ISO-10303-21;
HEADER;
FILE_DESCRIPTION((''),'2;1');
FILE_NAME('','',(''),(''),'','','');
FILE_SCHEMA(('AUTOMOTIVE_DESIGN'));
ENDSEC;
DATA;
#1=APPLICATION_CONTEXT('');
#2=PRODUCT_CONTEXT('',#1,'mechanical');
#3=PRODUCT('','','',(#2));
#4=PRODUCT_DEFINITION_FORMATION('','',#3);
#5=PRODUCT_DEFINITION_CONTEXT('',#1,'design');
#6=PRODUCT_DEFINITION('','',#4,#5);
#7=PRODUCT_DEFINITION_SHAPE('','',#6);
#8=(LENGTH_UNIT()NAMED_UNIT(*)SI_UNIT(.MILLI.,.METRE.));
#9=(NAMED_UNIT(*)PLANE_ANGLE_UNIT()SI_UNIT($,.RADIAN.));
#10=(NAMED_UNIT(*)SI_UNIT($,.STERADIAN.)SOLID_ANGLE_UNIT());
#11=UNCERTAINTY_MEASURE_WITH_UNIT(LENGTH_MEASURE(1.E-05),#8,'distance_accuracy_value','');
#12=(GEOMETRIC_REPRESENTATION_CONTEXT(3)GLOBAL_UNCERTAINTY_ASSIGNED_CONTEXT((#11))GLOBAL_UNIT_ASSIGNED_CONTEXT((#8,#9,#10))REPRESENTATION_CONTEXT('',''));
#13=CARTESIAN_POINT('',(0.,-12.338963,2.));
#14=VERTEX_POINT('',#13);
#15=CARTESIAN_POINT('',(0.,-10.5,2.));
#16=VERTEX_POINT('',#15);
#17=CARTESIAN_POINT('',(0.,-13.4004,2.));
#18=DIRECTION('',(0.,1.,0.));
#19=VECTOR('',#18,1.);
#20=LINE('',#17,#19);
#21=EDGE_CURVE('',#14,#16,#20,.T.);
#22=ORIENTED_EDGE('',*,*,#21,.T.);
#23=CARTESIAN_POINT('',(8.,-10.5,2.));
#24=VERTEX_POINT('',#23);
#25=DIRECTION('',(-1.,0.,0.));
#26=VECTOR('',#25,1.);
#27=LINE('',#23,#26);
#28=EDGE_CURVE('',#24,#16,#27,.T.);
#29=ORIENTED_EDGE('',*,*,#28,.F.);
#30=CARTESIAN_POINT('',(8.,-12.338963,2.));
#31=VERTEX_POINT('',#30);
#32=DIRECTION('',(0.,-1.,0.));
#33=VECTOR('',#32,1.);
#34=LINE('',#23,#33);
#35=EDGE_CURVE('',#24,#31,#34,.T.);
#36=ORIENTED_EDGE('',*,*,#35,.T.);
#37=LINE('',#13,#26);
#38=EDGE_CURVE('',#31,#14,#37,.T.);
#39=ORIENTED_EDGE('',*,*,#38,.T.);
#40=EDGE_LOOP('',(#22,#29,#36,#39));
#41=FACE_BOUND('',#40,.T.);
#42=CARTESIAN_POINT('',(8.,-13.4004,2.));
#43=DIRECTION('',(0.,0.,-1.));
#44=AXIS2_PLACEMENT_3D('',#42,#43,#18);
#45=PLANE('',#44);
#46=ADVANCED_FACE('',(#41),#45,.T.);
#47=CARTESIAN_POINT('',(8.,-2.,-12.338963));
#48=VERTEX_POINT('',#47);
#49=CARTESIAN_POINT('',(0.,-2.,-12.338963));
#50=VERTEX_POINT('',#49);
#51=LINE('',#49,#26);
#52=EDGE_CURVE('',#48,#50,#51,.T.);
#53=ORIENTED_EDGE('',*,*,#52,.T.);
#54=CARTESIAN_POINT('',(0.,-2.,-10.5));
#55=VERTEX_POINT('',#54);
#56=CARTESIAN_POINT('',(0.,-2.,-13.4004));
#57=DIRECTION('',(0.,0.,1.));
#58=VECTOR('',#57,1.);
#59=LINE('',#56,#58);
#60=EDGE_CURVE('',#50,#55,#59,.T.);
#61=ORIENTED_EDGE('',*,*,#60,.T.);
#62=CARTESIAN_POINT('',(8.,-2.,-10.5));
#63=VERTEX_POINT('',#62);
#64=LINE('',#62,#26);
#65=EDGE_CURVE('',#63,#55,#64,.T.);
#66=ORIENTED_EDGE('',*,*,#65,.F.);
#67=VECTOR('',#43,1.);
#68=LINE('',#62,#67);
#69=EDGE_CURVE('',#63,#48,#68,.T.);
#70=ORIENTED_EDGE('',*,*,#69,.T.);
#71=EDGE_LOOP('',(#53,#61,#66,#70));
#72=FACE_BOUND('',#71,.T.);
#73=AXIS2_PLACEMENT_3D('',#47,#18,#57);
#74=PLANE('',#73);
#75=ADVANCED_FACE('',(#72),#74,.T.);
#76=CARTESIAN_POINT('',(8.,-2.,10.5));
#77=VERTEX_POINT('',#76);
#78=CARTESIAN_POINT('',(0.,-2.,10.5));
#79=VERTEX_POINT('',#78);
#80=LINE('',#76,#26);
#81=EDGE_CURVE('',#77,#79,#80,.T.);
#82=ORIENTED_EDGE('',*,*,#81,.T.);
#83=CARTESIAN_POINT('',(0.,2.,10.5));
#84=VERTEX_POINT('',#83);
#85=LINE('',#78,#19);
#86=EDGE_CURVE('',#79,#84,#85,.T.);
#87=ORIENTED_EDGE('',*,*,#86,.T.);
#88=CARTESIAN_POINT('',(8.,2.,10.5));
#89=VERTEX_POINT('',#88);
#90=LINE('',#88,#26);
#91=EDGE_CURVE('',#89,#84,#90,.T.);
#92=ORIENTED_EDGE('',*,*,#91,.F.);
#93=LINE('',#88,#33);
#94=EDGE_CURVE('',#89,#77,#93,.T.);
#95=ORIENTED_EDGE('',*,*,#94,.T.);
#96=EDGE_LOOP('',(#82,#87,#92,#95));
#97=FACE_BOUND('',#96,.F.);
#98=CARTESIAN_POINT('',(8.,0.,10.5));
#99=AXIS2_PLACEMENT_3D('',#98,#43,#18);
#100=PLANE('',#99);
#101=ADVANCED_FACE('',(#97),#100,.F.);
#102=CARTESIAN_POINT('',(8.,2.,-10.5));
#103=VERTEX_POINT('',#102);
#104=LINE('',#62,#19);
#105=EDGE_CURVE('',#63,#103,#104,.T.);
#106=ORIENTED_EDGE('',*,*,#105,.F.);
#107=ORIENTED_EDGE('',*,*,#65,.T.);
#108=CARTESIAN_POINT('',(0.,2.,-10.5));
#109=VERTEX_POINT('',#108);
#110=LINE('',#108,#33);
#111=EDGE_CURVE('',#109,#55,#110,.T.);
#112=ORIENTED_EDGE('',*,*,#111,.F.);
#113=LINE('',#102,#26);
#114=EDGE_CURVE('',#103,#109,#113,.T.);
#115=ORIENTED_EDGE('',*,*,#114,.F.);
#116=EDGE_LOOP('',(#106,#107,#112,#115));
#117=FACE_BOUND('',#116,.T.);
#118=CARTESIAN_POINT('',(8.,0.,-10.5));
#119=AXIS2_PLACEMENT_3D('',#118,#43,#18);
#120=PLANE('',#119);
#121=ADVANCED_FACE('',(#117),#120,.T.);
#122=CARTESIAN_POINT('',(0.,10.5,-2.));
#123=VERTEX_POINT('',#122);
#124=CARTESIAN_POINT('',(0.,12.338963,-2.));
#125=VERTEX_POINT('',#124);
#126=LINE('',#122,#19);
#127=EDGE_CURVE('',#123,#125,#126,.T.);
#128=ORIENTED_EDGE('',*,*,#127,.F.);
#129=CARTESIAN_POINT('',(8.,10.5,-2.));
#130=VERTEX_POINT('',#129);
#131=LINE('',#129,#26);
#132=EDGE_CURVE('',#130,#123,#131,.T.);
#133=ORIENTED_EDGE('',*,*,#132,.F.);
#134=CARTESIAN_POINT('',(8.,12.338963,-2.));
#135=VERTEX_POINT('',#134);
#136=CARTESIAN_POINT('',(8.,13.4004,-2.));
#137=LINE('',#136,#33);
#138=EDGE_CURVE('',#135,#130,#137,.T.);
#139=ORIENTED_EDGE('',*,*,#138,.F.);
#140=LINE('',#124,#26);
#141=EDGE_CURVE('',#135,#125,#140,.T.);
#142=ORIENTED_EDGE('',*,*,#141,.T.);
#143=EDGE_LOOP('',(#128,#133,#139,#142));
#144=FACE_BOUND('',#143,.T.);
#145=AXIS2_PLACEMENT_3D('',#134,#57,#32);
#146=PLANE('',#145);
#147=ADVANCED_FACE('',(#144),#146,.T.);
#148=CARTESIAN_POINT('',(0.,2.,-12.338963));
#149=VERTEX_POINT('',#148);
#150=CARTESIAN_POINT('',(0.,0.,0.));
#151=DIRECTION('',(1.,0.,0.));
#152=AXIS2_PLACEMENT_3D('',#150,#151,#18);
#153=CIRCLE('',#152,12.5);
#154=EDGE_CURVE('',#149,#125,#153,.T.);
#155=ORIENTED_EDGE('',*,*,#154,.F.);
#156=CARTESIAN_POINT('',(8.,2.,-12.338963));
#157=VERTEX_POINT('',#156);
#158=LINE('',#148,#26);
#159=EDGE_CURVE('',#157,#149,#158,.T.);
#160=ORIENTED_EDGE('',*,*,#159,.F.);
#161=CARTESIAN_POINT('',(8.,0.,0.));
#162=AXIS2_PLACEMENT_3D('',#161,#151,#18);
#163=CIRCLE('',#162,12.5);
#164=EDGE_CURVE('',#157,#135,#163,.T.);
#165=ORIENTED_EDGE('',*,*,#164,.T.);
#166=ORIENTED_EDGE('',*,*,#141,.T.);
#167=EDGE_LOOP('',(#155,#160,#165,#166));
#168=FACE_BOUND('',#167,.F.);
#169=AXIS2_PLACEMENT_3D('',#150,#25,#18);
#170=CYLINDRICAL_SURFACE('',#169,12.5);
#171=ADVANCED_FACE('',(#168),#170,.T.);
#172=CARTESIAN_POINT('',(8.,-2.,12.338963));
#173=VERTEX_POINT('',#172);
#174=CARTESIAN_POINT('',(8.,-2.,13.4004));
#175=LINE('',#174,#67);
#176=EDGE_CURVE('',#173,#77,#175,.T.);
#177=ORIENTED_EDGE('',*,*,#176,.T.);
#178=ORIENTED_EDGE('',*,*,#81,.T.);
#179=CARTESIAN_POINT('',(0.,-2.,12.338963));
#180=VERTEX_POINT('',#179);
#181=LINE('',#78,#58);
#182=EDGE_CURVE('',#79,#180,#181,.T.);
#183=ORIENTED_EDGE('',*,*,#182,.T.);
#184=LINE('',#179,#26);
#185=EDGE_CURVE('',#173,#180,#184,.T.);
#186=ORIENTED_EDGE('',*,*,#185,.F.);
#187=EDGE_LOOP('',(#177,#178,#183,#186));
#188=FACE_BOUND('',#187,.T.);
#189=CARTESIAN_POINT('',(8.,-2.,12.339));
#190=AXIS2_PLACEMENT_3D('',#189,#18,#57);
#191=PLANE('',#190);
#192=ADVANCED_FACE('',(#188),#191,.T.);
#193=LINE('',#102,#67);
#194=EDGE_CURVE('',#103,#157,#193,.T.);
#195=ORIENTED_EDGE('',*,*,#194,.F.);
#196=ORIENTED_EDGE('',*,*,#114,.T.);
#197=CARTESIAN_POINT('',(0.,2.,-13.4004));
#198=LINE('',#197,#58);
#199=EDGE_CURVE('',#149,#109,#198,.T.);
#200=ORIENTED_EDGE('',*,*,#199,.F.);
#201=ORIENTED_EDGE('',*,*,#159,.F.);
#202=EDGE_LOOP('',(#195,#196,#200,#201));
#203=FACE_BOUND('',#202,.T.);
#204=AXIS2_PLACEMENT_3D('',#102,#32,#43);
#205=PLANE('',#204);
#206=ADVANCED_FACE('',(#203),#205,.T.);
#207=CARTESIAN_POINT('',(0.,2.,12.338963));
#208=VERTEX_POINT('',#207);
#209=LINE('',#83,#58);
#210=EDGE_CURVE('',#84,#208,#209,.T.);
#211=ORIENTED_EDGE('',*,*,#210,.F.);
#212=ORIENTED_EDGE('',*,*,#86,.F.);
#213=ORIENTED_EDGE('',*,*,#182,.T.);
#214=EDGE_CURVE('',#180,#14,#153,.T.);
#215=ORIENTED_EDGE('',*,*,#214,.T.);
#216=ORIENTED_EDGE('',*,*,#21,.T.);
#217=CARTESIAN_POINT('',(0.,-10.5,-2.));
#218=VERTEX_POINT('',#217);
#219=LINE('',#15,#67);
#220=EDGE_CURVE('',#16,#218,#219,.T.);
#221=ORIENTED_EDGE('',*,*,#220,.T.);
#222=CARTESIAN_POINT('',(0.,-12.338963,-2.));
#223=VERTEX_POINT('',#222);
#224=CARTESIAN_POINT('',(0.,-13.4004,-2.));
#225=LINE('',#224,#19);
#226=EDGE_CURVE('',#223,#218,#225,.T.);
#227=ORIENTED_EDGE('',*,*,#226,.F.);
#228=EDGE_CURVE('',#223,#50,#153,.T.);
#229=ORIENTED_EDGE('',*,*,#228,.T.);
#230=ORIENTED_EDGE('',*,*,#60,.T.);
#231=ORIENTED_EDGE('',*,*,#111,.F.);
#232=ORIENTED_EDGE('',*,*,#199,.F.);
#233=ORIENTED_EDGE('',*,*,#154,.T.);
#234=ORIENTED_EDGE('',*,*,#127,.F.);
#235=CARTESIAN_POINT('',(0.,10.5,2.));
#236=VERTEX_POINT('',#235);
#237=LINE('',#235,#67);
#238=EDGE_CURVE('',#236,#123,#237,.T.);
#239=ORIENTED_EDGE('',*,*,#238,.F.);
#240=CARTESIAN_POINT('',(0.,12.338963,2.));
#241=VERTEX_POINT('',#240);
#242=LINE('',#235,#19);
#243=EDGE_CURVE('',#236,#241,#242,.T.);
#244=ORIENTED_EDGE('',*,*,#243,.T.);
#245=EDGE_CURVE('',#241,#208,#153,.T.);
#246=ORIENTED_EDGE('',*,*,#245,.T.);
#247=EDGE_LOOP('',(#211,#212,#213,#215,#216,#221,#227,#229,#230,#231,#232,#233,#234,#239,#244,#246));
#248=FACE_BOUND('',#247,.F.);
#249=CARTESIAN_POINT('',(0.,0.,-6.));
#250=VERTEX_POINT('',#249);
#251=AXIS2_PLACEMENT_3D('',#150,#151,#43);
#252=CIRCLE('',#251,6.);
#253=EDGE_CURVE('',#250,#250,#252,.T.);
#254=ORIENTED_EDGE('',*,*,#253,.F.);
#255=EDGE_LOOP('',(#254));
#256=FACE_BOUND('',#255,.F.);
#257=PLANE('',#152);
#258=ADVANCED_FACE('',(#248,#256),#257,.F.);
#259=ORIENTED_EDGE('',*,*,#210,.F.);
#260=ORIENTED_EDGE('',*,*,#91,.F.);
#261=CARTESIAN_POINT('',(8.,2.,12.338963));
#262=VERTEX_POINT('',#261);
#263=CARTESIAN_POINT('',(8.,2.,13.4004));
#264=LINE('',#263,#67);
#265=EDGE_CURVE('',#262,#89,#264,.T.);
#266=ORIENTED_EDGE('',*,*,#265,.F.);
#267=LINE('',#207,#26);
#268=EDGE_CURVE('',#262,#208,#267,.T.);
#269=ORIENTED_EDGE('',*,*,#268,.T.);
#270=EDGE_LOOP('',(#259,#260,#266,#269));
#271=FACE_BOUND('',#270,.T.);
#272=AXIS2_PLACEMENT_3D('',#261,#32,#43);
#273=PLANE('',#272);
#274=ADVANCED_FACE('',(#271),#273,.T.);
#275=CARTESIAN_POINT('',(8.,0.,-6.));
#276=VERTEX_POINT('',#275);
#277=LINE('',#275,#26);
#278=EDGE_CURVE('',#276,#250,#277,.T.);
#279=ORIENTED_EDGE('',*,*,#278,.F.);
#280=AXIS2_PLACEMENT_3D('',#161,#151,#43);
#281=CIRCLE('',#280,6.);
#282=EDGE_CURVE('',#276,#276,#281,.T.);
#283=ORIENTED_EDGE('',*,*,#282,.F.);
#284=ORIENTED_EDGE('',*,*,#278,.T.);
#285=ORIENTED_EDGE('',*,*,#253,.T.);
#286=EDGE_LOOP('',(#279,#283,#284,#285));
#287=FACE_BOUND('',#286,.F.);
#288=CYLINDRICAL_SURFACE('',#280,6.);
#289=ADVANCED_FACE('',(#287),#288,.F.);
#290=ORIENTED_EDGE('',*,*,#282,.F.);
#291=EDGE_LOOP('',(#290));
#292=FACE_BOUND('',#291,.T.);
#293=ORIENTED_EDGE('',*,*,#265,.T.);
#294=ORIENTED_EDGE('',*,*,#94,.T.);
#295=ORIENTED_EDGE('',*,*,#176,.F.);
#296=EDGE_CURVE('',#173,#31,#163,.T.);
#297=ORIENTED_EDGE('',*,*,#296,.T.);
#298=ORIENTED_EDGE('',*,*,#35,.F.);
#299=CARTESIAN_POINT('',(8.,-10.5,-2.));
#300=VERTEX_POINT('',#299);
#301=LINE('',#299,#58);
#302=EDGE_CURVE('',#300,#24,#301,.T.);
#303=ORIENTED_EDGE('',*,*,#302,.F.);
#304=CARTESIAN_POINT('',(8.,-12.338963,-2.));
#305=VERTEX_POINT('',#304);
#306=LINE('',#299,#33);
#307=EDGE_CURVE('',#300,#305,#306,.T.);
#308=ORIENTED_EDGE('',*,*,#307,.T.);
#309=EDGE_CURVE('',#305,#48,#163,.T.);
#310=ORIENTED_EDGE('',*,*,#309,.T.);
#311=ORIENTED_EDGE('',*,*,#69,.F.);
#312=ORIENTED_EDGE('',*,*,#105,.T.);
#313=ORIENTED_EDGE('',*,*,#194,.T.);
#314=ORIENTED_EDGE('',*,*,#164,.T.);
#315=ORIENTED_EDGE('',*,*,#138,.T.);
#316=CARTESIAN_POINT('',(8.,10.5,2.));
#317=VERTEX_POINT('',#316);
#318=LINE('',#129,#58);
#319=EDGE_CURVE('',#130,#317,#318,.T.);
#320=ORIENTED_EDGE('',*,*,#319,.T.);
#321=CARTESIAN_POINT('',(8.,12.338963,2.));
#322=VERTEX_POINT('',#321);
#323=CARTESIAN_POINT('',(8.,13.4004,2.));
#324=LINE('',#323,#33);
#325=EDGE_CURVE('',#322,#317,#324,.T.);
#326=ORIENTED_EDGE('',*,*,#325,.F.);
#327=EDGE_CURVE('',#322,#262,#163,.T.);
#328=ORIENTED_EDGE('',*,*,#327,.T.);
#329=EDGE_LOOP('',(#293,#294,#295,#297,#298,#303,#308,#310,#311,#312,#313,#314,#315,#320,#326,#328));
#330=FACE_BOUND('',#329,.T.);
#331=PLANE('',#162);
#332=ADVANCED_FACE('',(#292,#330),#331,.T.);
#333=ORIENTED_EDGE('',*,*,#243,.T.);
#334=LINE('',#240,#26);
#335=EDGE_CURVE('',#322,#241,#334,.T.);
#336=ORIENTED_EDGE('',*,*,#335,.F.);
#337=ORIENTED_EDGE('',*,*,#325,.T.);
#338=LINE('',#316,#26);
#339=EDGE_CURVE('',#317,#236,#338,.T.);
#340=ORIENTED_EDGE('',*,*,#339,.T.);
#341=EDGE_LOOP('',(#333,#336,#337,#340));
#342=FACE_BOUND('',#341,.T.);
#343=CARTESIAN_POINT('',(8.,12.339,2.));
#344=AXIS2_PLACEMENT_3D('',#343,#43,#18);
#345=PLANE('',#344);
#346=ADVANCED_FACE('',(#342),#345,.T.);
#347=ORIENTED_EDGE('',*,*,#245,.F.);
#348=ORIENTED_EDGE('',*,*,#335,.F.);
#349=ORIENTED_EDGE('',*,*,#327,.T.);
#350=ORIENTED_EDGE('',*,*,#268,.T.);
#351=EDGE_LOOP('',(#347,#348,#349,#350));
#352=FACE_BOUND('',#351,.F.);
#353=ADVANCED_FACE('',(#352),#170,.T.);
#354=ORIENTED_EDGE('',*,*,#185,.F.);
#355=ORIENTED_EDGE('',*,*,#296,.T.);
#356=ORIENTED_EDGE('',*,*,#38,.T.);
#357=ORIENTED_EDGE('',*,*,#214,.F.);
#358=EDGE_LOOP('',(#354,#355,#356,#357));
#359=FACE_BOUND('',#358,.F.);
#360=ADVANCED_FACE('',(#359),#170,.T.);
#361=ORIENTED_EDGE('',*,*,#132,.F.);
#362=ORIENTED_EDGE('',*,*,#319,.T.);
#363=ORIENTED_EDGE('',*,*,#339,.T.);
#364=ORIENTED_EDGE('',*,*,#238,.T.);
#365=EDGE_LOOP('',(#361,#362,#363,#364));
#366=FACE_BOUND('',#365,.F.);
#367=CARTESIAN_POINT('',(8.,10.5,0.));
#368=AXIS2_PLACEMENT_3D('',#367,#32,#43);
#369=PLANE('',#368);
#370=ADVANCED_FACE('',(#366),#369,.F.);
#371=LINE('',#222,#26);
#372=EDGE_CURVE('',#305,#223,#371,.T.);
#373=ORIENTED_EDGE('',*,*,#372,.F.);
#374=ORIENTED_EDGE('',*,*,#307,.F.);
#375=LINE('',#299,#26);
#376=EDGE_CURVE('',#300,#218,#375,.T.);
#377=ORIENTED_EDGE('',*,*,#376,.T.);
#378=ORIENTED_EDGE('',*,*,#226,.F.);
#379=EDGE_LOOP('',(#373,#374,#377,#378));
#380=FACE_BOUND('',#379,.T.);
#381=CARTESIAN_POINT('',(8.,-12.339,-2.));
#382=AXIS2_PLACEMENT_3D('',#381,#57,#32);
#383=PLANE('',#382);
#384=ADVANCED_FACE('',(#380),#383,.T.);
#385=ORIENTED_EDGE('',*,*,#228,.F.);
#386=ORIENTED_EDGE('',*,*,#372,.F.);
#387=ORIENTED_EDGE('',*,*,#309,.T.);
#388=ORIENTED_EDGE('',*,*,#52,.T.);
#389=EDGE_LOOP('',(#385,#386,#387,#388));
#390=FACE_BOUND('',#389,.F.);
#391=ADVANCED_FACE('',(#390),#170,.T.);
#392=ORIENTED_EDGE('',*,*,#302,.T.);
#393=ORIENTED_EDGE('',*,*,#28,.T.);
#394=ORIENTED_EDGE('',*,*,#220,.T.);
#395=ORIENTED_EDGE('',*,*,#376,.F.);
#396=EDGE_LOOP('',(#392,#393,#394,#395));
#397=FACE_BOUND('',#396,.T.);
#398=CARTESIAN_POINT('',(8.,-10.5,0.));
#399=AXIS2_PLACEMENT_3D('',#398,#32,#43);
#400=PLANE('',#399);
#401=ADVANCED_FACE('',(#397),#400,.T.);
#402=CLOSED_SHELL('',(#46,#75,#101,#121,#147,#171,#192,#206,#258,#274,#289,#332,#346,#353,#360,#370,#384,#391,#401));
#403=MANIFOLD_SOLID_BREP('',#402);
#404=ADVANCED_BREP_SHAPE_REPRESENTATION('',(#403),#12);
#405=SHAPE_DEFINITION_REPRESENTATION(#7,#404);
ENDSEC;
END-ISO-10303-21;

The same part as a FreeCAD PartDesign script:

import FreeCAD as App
import Part
import Sketcher
from FreeCAD import Vector

doc = App.newDocument("Part")
body = doc.addObject("PartDesign::Body", "Body")

sketch1 = body.newObject("Sketcher::SketchObject", "Sketch")
sketch1.AttachmentSupport = (doc.getObject("YZ_Plane"), [""])
sketch1.MapMode = "FlatFace"
sketch1.addGeometry(Part.Circle(Vector(0, 0, 0), Vector(0, 0, 1), 12.5), False)
sketch1.addConstraint([
    Sketcher.Constraint("Coincident", 0, 3, -1, 1),
    Sketcher.Constraint("Diameter", 0, 25.0),
])
pad1 = body.newObject("PartDesign::Pad", "Pad")
pad1.Profile = sketch1
pad1.Length = 8

sketch2 = body.newObject("Sketcher::SketchObject", "Sketch001")
sketch2.AttachmentSupport = (doc.getObject("YZ_Plane"), [""])
sketch2.MapMode = "FlatFace"
sketch2.AttachmentOffset = App.Placement(Vector(0, 0, 8), App.Rotation())
sketch2.addGeometry(Part.Circle(Vector(0, 0, 0), Vector(0, 0, 1), 6), False)
sketch2.addConstraint([
    Sketcher.Constraint("Coincident", 0, 3, -1, 1),
    Sketcher.Constraint("Diameter", 0, 12.0),
])
pocket1 = body.newObject("PartDesign::Pocket", "Pocket")
pocket1.Profile = sketch2
pocket1.Length = 8

sketch3 = body.newObject("Sketcher::SketchObject", "Sketch002")
sketch3.AttachmentSupport = (doc.getObject("YZ_Plane"), [""])
sketch3.MapMode = "FlatFace"
sketch3.AttachmentOffset = App.Placement(Vector(0, 0, 8), App.Rotation())
sketch3.addGeometry([
    Part.LineSegment(Vector(2, -10.5, 0), Vector(-2, -10.5, 0)),
    Part.LineSegment(Vector(-2, -10.5, 0), Vector(-2, -13.4004, 0)),
    Part.LineSegment(Vector(-2, -13.4004, 0), Vector(2, -13.4004, 0)),
    Part.LineSegment(Vector(2, -13.4004, 0), Vector(2, -10.5, 0)),
    Part.LineSegment(Vector(10.5, -2, 0), Vector(13.4004, -2, 0)),
    Part.LineSegment(Vector(13.4004, -2, 0), Vector(13.4004, 2, 0)),
    Part.LineSegment(Vector(13.4004, 2, 0), Vector(10.5, 2, 0)),
    Part.LineSegment(Vector(10.5, 2, 0), Vector(10.5, -2, 0)),
    Part.LineSegment(Vector(-13.4004, -2, 0), Vector(-10.5, -2, 0)),
    Part.LineSegment(Vector(-10.5, -2, 0), Vector(-10.5, 2, 0)),
    Part.LineSegment(Vector(-10.5, 2, 0), Vector(-13.4004, 2, 0)),
    Part.LineSegment(Vector(-13.4004, 2, 0), Vector(-13.4004, -2, 0)),
    Part.LineSegment(Vector(2, 10.5, 0), Vector(2, 13.4004, 0)),
    Part.LineSegment(Vector(2, 13.4004, 0), Vector(-2, 13.4004, 0)),
    Part.LineSegment(Vector(-2, 13.4004, 0), Vector(-2, 10.5, 0)),
    Part.LineSegment(Vector(-2, 10.5, 0), Vector(2, 10.5, 0)),
], False)
sketch3.addConstraint([
    Sketcher.Constraint("Coincident", 0, 2, 1, 1),
    Sketcher.Constraint("Coincident", 1, 2, 2, 1),
    Sketcher.Constraint("Coincident", 2, 2, 3, 1),
    Sketcher.Constraint("Coincident", 3, 2, 0, 1),
    Sketcher.Constraint("Coincident", 4, 2, 5, 1),
    Sketcher.Constraint("Coincident", 5, 2, 6, 1),
    Sketcher.Constraint("Coincident", 6, 2, 7, 1),
    Sketcher.Constraint("Coincident", 7, 2, 4, 1),
    Sketcher.Constraint("Coincident", 8, 2, 9, 1),
    Sketcher.Constraint("Coincident", 9, 2, 10, 1),
    Sketcher.Constraint("Coincident", 10, 2, 11, 1),
    Sketcher.Constraint("Coincident", 11, 2, 8, 1),
    Sketcher.Constraint("Coincident", 12, 2, 13, 1),
    Sketcher.Constraint("Coincident", 13, 2, 14, 1),
    Sketcher.Constraint("Coincident", 14, 2, 15, 1),
    Sketcher.Constraint("Coincident", 15, 2, 12, 1),
    Sketcher.Constraint("Horizontal", 0),
    Sketcher.Constraint("Vertical", 1),
    Sketcher.Constraint("Horizontal", 2),
    Sketcher.Constraint("Vertical", 3),
    Sketcher.Constraint("Horizontal", 4),
    Sketcher.Constraint("Vertical", 5),
    Sketcher.Constraint("Horizontal", 6),
    Sketcher.Constraint("Vertical", 7),
    Sketcher.Constraint("Horizontal", 8),
    Sketcher.Constraint("Vertical", 9),
    Sketcher.Constraint("Horizontal", 10),
    Sketcher.Constraint("Vertical", 11),
    Sketcher.Constraint("Vertical", 12),
    Sketcher.Constraint("Horizontal", 13),
    Sketcher.Constraint("Vertical", 14),
    Sketcher.Constraint("Horizontal", 15),
    Sketcher.Constraint("Symmetric", 6, 2, 8, 2, -1, 1),
    Sketcher.Constraint("Symmetric", 4, 2, 10, 2, -1, 1),
    Sketcher.Constraint("Symmetric", 1, 2, 12, 2, -1, 1),
    Sketcher.Constraint("Symmetric", 3, 2, 14, 2, -1, 1),
    Sketcher.Constraint("Horizontal", 7, 2, 8, 2),
    Sketcher.Constraint("Vertical", 3, 2, 12, 2),
    Sketcher.Constraint("Equal", 10, 1),
    Sketcher.Constraint("Equal", 15, 5),
    Sketcher.Constraint("DistanceX", 0, 2, 0, 1, 4.0),
    Sketcher.Constraint("DistanceX", 8, 2, 7, 2, 21.0),
    Sketcher.Constraint("DistanceY", 0, 2, -1, 1, 10.5),
    Sketcher.Constraint("DistanceX", 4, 1, 4, 2, 2.9004),
])
pocket2 = body.newObject("PartDesign::Pocket", "Pocket001")
pocket2.Profile = sketch3
pocket2.Length = 8

doc.recompute()
